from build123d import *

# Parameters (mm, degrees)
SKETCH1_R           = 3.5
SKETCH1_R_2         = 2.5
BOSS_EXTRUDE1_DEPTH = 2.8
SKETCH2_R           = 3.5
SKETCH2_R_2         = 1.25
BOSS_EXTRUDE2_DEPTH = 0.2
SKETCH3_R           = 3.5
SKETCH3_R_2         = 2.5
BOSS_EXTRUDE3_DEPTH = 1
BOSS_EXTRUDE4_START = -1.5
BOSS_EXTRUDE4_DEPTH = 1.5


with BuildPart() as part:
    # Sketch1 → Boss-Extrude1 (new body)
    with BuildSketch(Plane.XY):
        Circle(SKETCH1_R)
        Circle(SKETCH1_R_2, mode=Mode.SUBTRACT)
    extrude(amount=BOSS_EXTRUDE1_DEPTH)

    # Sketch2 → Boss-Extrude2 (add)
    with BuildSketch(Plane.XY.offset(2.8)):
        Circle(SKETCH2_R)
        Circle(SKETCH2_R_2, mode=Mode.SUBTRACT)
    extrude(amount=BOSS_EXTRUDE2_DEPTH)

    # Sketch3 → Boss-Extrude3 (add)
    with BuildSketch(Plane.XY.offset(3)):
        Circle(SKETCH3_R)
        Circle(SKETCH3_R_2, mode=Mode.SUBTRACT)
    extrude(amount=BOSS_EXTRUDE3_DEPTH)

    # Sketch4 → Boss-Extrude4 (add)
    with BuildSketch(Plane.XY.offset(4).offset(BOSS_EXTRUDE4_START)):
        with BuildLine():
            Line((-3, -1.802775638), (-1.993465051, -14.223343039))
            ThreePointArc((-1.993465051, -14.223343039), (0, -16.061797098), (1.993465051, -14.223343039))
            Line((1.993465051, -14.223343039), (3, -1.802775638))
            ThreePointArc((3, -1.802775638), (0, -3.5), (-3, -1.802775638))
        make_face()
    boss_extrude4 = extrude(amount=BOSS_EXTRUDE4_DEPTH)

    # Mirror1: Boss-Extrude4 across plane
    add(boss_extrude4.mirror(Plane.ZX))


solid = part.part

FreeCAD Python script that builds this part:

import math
import FreeCAD as App
import Part
import Sketcher

V = App.Vector

doc = App.newDocument("Part")
params = doc.addObject("Spreadsheet::Sheet", "Params")
for row, (alias, value) in enumerate([
    ("sketch1_diameter", "7 mm"),
    ("sketch1_diameter2", "5 mm"),
    ("pad1_length", "2.8 mm"),
    ("sketch2_diameter", "7 mm"),
    ("sketch2_diameter2", "2.5 mm"),
    ("pad2_length", "0.2 mm"),
    ("sketch3_diameter", "7 mm"),
    ("sketch3_diameter2", "5 mm"),
    ("pad3_length", "1 mm"),
    ("sketch4_radius", "2 mm"),
    ("sketch4_radius2", "3.5 mm"),
    ("pad4_length", "1.5 mm"),
], start=1):
    params.set(f"A{row}", alias)
    params.set(f"B{row}", "=" + value)
    params.setAlias(f"B{row}", alias)

body = doc.addObject("PartDesign::Body", "Body")

sketch1 = body.newObject("Sketcher::SketchObject", "Sketch")
sketch1.AttachmentSupport = (doc.getObject("XY_Plane"), [""])
sketch1.MapMode = "FlatFace"
sketch1.addGeometry([
    Part.Circle(V(0, 0, 0), V(0, 0, 1), 3.5),
    Part.Circle(V(0, 0, 0), V(0, 0, 1), 2.5),
], False)
sketch1.addConstraint([
    Sketcher.Constraint("Coincident", 0, 3, -1, 1),
    Sketcher.Constraint("Coincident", 1, 3, -1, 1),
    Sketcher.Constraint("Diameter", 0, 7.0),
    Sketcher.Constraint("Diameter", 1, 5.0),
])
sketch1.setExpression("Constraints[2]", "Params.sketch1_diameter")
sketch1.setExpression("Constraints[3]", "Params.sketch1_diameter2")
pad1 = body.newObject("PartDesign::Pad", "Pad")
pad1.Profile = sketch1
pad1.setExpression("Length", "Params.pad1_length")

sketch2 = body.newObject("Sketcher::SketchObject", "Sketch001")
sketch2.AttachmentSupport = (doc.getObject("XY_Plane"), [""])
sketch2.MapMode = "FlatFace"
sketch2.AttachmentOffset = App.Placement(V(0, 0, 2.8), App.Rotation())
sketch2.addGeometry([
    Part.Circle(V(0, 0, 0), V(0, 0, 1), 3.5),
    Part.Circle(V(0, 0, 0), V(0, 0, 1), 1.2),
], False)
sketch2.addConstraint([
    Sketcher.Constraint("Coincident", 0, 3, -1, 1),
    Sketcher.Constraint("Coincident", 1, 3, -1, 1),
    Sketcher.Constraint("Diameter", 0, 7.0),
    Sketcher.Constraint("Diameter", 1, 2.5),
])
sketch2.setExpression("Constraints[2]", "Params.sketch2_diameter")
sketch2.setExpression("Constraints[3]", "Params.sketch2_diameter2")
pad2 = body.newObject("PartDesign::Pad", "Pad001")
pad2.Profile = sketch2
pad2.setExpression("Length", "Params.pad2_length")

sketch3 = body.newObject("Sketcher::SketchObject", "Sketch002")
sketch3.AttachmentSupport = (doc.getObject("XY_Plane"), [""])
sketch3.MapMode = "FlatFace"
sketch3.AttachmentOffset = App.Placement(V(0, 0, 3), App.Rotation())
sketch3.addGeometry([
    Part.Circle(V(0, 0, 0), V(0, 0, 1), 3.5),
    Part.Circle(V(0, 0, 0), V(0, 0, 1), 2.5),
], False)
sketch3.addConstraint([
    Sketcher.Constraint("Coincident", 0, 3, -1, 1),
    Sketcher.Constraint("Coincident", 1, 3, -1, 1),
    Sketcher.Constraint("Diameter", 0, 7.0),
    Sketcher.Constraint("Diameter", 1, 5.0),
])
sketch3.setExpression("Constraints[2]", "Params.sketch3_diameter")
sketch3.setExpression("Constraints[3]", "Params.sketch3_diameter2")
pad3 = body.newObject("PartDesign::Pad", "Pad002")
pad3.Profile = sketch3
pad3.setExpression("Length", "Params.pad3_length")

sketch4 = body.newObject("Sketcher::SketchObject", "Sketch003")
sketch4.AttachmentSupport = (doc.getObject("XY_Plane"), [""])
sketch4.MapMode = "FlatFace"
sketch4.AttachmentOffset = App.Placement(V(0, 0, 2.5), App.Rotation())
sketch4.addGeometry([
    Part.LineSegment(V(-3, -1.8, 0), V(-2, -14.2, 0)),
    Part.ArcOfCircle(Part.Circle(V(0, -14.1, 0), V(0, 0, 1), 2), math.radians(-175), math.radians(-5)),
    Part.LineSegment(V(2, -14.2, 0), V(3, -1.8, 0)),
    Part.ArcOfCircle(Part.Circle(V(0, 0, 0), V(0, 0, 1), 3.5), math.radians(-149), math.radians(-31)),
], False)
sketch4.addConstraint([
    Sketcher.Constraint("Tangent", 0, 2, 1, 1),
    Sketcher.Constraint("Tangent", 1, 2, 2, 1),
    Sketcher.Constraint("Coincident", 2, 2, 3, 2),
    Sketcher.Constraint("Coincident", 3, 1, 0, 1),
    Sketcher.Constraint("Coincident", 3, 3, -1, 1),
    Sketcher.Constraint("Symmetric", 0, 2, 1, 2, -2),
    Sketcher.Constraint("Radius", 1, 2.0),
    Sketcher.Constraint("Radius", 3, 3.5),
    Sketcher.Constraint("DistanceX", -1, 1, 2, 2, 3.0),
    Sketcher.Constraint("DistanceY", 1, 3, 2, 2, 12.259021),
])
sketch4.setExpression("Constraints[6]", "Params.sketch4_radius")
sketch4.setExpression("Constraints[7]", "Params.sketch4_radius2")
pad4 = body.newObject("PartDesign::Pad", "Pad003")
pad4.Profile = sketch4
pad4.setExpression("Length", "Params.pad4_length")
doc.recompute()

mirrored = body.newObject("PartDesign::Mirrored", "Mirrored")
mirrored.Originals = [pad4]
mirrored.MirrorPlane = (doc.getObject("XZ_Plane"), [""])
body.Tip = mirrored

doc.recompute()
